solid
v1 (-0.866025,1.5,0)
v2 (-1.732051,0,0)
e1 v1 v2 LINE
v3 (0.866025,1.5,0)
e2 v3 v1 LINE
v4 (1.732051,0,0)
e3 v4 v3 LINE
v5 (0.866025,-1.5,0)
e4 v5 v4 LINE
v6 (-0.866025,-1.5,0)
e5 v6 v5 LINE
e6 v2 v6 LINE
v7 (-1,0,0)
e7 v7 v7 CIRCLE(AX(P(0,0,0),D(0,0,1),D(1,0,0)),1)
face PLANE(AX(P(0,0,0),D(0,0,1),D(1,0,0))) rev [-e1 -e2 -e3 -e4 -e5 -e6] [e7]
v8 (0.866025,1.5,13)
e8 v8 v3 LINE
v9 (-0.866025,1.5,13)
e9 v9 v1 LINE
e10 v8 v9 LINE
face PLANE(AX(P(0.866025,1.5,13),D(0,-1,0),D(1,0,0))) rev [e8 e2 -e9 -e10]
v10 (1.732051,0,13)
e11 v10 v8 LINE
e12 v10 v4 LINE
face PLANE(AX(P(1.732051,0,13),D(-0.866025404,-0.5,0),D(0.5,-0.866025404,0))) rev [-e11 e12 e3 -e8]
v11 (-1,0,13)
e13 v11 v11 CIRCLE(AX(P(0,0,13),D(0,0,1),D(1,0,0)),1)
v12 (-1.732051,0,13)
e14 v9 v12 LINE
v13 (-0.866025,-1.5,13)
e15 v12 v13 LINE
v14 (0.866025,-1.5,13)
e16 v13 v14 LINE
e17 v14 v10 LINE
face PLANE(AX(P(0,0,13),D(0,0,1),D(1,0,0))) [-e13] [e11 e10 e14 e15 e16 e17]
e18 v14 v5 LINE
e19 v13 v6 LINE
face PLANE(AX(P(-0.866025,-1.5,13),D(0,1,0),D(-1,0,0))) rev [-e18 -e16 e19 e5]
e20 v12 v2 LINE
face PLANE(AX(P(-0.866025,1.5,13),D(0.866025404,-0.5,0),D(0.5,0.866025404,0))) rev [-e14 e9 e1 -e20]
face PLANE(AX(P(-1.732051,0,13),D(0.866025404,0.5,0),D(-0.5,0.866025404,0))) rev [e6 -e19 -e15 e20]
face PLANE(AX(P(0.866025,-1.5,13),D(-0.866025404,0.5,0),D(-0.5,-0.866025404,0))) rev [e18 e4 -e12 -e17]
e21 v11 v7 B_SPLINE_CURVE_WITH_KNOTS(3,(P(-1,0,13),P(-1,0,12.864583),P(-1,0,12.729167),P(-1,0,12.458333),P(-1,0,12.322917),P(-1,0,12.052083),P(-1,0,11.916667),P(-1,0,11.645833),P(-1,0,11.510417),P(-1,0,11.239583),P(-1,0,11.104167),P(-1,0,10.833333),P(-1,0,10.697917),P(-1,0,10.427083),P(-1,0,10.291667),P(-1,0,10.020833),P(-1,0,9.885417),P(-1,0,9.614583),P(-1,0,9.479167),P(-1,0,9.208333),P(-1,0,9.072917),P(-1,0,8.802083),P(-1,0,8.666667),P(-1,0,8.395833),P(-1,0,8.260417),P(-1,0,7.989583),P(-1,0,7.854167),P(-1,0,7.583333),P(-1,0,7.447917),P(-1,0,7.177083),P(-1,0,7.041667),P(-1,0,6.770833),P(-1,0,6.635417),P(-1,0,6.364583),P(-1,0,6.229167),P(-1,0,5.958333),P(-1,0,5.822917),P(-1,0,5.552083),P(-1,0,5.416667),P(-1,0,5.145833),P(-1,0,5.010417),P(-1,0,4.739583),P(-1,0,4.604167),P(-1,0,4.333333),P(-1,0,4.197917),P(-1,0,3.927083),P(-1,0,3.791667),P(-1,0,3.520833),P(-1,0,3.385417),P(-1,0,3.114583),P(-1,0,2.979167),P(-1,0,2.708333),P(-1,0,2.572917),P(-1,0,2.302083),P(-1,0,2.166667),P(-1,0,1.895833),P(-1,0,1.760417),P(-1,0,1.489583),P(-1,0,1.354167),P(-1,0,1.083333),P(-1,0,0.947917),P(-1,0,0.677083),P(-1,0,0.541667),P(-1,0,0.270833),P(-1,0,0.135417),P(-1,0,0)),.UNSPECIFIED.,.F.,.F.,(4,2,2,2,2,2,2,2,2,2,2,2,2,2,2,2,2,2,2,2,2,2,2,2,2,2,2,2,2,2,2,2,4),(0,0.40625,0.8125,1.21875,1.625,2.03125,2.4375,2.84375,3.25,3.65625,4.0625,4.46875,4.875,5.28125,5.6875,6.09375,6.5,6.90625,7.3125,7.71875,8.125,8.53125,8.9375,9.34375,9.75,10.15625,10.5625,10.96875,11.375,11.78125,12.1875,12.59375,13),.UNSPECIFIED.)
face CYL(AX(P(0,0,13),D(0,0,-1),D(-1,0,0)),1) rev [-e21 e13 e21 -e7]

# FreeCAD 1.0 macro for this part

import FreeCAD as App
import Part
import Sketcher
Q = App.Units.Quantity


def add_polygon(sketch, points):
    """Adds a closed chain of lines whose ends are joined by coincident constraints."""
    first, n = sketch.GeometryCount, len(points)
    for a, b in zip(points, points[1:] + points[:1]):
        sketch.addGeometry(Part.LineSegment(App.Vector(*a, 0), App.Vector(*b, 0)), False)
    for i in range(n):
        sketch.addConstraint(Sketcher.Constraint("Coincident", first + i, 2, first + (i + 1) % n, 1))

doc = App.newDocument("Part")
body = doc.addObject("PartDesign::Body", "Body")

# Sketch on XY plane
sketch1 = body.newObject("Sketcher::SketchObject", "Sketch")
sketch1.AttachmentSupport = (doc.getObject("XY_Plane"), [""])
sketch1.MapMode = "FlatFace"
add_polygon(sketch1, [(1.732051, 0), (0.866025, 1.5), (-0.866025, 1.5), (-1.732051, 0), (-0.866025, -1.5), (0.866025, -1.5)])  # lines 0-5
sketch1.addGeometry(Part.Circle(App.Vector(0, 0, 0), App.Vector(0, 0, 1), 1), False)  # 6
sketch1.addConstraint([
    Sketcher.Constraint("Horizontal", 1),
    Sketcher.Constraint("Horizontal", 4),
    Sketcher.Constraint("Coincident", 6, 3, -1, 1),
    Sketcher.Constraint("Symmetric", 0, 2, 3, 2, -1, 1),
    Sketcher.Constraint("Symmetric", 2, 2, 5, 2, -1, 1),
    Sketcher.Constraint("PointOnObject", 2, 2, -1),
    Sketcher.Constraint("Parallel", 2, 5),
    Sketcher.Constraint("Vertical", 1, 2, 3, 2),
    Sketcher.Constraint("Diameter", 6, Q("2 mm")),
    Sketcher.Constraint("Angle", 0, Q("120 deg")),
    Sketcher.Constraint("DistanceY", 3, 2, 1, 2, Q("3 mm")),
    Sketcher.Constraint("DistanceX", 1, 2, 1, 1, Q("1.732051 mm")),
])
pad1 = body.newObject("PartDesign::Pad", "Pad")
pad1.Profile = sketch1
pad1.Length = 13

doc.recompute()
